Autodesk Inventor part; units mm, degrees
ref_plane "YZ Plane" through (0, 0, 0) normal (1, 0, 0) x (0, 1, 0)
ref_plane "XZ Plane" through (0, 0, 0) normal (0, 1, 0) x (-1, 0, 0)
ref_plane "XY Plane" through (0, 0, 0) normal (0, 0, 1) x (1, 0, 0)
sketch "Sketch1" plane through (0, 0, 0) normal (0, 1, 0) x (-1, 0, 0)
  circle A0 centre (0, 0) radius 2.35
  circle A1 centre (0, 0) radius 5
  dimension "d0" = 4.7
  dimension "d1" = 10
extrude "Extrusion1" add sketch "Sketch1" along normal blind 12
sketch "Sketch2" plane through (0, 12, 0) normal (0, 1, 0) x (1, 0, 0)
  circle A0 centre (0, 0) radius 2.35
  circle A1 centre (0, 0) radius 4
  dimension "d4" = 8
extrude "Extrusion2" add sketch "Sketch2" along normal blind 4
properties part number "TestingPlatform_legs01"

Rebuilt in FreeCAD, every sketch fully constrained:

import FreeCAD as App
import Part
import Sketcher
from FreeCAD import Vector

doc = App.newDocument("Part")
body = doc.addObject("PartDesign::Body", "Body")

# Sketch on XZ plane
sketch1 = body.newObject("Sketcher::SketchObject", "Sketch")
sketch1.AttachmentSupport = (doc.getObject("XZ_Plane"), [""])
sketch1.MapMode = "FlatFace"
sketch1.addGeometry([
    Part.Circle(Vector(0, 0, 0), Vector(0, 0, 1), 5),
    Part.Circle(Vector(0, 0, 0), Vector(0, 0, 1), 2.4),
], False)
sketch1.addConstraint([
    Sketcher.Constraint("Coincident", 0, 3, -1, 1),
    Sketcher.Constraint("Coincident", 1, 3, -1, 1),
    Sketcher.Constraint("Diameter", 0, 10.0),
    Sketcher.Constraint("Diameter", 1, 4.7),
])
pad1 = body.newObject("PartDesign::Pad", "Pad")
pad1.Profile = sketch1
pad1.Length = 12
pad1.Reversed = True

# Sketch on XZ plane
sketch2 = body.newObject("Sketcher::SketchObject", "Sketch001")
sketch2.AttachmentSupport = (doc.getObject("XZ_Plane"), [""])
sketch2.MapMode = "FlatFace"
sketch2.AttachmentOffset = App.Placement(Vector(0, 0, -12), App.Rotation())
sketch2.addGeometry([
    Part.Circle(Vector(0, 0, 0), Vector(0, 0, 1), 4),
    Part.Circle(Vector(0, 0, 0), Vector(0, 0, 1), 2.4),
], False)
sketch2.addConstraint([
    Sketcher.Constraint("Coincident", 0, 3, -1, 1),
    Sketcher.Constraint("Coincident", 1, 3, -1, 1),
    Sketcher.Constraint("Diameter", 0, 8.0),
    Sketcher.Constraint("Diameter", 1, 4.7),
])
pad2 = body.newObject("PartDesign::Pad", "Pad001")
pad2.Profile = sketch2
pad2.Length = 4
pad2.Reversed = True

doc.recompute()
